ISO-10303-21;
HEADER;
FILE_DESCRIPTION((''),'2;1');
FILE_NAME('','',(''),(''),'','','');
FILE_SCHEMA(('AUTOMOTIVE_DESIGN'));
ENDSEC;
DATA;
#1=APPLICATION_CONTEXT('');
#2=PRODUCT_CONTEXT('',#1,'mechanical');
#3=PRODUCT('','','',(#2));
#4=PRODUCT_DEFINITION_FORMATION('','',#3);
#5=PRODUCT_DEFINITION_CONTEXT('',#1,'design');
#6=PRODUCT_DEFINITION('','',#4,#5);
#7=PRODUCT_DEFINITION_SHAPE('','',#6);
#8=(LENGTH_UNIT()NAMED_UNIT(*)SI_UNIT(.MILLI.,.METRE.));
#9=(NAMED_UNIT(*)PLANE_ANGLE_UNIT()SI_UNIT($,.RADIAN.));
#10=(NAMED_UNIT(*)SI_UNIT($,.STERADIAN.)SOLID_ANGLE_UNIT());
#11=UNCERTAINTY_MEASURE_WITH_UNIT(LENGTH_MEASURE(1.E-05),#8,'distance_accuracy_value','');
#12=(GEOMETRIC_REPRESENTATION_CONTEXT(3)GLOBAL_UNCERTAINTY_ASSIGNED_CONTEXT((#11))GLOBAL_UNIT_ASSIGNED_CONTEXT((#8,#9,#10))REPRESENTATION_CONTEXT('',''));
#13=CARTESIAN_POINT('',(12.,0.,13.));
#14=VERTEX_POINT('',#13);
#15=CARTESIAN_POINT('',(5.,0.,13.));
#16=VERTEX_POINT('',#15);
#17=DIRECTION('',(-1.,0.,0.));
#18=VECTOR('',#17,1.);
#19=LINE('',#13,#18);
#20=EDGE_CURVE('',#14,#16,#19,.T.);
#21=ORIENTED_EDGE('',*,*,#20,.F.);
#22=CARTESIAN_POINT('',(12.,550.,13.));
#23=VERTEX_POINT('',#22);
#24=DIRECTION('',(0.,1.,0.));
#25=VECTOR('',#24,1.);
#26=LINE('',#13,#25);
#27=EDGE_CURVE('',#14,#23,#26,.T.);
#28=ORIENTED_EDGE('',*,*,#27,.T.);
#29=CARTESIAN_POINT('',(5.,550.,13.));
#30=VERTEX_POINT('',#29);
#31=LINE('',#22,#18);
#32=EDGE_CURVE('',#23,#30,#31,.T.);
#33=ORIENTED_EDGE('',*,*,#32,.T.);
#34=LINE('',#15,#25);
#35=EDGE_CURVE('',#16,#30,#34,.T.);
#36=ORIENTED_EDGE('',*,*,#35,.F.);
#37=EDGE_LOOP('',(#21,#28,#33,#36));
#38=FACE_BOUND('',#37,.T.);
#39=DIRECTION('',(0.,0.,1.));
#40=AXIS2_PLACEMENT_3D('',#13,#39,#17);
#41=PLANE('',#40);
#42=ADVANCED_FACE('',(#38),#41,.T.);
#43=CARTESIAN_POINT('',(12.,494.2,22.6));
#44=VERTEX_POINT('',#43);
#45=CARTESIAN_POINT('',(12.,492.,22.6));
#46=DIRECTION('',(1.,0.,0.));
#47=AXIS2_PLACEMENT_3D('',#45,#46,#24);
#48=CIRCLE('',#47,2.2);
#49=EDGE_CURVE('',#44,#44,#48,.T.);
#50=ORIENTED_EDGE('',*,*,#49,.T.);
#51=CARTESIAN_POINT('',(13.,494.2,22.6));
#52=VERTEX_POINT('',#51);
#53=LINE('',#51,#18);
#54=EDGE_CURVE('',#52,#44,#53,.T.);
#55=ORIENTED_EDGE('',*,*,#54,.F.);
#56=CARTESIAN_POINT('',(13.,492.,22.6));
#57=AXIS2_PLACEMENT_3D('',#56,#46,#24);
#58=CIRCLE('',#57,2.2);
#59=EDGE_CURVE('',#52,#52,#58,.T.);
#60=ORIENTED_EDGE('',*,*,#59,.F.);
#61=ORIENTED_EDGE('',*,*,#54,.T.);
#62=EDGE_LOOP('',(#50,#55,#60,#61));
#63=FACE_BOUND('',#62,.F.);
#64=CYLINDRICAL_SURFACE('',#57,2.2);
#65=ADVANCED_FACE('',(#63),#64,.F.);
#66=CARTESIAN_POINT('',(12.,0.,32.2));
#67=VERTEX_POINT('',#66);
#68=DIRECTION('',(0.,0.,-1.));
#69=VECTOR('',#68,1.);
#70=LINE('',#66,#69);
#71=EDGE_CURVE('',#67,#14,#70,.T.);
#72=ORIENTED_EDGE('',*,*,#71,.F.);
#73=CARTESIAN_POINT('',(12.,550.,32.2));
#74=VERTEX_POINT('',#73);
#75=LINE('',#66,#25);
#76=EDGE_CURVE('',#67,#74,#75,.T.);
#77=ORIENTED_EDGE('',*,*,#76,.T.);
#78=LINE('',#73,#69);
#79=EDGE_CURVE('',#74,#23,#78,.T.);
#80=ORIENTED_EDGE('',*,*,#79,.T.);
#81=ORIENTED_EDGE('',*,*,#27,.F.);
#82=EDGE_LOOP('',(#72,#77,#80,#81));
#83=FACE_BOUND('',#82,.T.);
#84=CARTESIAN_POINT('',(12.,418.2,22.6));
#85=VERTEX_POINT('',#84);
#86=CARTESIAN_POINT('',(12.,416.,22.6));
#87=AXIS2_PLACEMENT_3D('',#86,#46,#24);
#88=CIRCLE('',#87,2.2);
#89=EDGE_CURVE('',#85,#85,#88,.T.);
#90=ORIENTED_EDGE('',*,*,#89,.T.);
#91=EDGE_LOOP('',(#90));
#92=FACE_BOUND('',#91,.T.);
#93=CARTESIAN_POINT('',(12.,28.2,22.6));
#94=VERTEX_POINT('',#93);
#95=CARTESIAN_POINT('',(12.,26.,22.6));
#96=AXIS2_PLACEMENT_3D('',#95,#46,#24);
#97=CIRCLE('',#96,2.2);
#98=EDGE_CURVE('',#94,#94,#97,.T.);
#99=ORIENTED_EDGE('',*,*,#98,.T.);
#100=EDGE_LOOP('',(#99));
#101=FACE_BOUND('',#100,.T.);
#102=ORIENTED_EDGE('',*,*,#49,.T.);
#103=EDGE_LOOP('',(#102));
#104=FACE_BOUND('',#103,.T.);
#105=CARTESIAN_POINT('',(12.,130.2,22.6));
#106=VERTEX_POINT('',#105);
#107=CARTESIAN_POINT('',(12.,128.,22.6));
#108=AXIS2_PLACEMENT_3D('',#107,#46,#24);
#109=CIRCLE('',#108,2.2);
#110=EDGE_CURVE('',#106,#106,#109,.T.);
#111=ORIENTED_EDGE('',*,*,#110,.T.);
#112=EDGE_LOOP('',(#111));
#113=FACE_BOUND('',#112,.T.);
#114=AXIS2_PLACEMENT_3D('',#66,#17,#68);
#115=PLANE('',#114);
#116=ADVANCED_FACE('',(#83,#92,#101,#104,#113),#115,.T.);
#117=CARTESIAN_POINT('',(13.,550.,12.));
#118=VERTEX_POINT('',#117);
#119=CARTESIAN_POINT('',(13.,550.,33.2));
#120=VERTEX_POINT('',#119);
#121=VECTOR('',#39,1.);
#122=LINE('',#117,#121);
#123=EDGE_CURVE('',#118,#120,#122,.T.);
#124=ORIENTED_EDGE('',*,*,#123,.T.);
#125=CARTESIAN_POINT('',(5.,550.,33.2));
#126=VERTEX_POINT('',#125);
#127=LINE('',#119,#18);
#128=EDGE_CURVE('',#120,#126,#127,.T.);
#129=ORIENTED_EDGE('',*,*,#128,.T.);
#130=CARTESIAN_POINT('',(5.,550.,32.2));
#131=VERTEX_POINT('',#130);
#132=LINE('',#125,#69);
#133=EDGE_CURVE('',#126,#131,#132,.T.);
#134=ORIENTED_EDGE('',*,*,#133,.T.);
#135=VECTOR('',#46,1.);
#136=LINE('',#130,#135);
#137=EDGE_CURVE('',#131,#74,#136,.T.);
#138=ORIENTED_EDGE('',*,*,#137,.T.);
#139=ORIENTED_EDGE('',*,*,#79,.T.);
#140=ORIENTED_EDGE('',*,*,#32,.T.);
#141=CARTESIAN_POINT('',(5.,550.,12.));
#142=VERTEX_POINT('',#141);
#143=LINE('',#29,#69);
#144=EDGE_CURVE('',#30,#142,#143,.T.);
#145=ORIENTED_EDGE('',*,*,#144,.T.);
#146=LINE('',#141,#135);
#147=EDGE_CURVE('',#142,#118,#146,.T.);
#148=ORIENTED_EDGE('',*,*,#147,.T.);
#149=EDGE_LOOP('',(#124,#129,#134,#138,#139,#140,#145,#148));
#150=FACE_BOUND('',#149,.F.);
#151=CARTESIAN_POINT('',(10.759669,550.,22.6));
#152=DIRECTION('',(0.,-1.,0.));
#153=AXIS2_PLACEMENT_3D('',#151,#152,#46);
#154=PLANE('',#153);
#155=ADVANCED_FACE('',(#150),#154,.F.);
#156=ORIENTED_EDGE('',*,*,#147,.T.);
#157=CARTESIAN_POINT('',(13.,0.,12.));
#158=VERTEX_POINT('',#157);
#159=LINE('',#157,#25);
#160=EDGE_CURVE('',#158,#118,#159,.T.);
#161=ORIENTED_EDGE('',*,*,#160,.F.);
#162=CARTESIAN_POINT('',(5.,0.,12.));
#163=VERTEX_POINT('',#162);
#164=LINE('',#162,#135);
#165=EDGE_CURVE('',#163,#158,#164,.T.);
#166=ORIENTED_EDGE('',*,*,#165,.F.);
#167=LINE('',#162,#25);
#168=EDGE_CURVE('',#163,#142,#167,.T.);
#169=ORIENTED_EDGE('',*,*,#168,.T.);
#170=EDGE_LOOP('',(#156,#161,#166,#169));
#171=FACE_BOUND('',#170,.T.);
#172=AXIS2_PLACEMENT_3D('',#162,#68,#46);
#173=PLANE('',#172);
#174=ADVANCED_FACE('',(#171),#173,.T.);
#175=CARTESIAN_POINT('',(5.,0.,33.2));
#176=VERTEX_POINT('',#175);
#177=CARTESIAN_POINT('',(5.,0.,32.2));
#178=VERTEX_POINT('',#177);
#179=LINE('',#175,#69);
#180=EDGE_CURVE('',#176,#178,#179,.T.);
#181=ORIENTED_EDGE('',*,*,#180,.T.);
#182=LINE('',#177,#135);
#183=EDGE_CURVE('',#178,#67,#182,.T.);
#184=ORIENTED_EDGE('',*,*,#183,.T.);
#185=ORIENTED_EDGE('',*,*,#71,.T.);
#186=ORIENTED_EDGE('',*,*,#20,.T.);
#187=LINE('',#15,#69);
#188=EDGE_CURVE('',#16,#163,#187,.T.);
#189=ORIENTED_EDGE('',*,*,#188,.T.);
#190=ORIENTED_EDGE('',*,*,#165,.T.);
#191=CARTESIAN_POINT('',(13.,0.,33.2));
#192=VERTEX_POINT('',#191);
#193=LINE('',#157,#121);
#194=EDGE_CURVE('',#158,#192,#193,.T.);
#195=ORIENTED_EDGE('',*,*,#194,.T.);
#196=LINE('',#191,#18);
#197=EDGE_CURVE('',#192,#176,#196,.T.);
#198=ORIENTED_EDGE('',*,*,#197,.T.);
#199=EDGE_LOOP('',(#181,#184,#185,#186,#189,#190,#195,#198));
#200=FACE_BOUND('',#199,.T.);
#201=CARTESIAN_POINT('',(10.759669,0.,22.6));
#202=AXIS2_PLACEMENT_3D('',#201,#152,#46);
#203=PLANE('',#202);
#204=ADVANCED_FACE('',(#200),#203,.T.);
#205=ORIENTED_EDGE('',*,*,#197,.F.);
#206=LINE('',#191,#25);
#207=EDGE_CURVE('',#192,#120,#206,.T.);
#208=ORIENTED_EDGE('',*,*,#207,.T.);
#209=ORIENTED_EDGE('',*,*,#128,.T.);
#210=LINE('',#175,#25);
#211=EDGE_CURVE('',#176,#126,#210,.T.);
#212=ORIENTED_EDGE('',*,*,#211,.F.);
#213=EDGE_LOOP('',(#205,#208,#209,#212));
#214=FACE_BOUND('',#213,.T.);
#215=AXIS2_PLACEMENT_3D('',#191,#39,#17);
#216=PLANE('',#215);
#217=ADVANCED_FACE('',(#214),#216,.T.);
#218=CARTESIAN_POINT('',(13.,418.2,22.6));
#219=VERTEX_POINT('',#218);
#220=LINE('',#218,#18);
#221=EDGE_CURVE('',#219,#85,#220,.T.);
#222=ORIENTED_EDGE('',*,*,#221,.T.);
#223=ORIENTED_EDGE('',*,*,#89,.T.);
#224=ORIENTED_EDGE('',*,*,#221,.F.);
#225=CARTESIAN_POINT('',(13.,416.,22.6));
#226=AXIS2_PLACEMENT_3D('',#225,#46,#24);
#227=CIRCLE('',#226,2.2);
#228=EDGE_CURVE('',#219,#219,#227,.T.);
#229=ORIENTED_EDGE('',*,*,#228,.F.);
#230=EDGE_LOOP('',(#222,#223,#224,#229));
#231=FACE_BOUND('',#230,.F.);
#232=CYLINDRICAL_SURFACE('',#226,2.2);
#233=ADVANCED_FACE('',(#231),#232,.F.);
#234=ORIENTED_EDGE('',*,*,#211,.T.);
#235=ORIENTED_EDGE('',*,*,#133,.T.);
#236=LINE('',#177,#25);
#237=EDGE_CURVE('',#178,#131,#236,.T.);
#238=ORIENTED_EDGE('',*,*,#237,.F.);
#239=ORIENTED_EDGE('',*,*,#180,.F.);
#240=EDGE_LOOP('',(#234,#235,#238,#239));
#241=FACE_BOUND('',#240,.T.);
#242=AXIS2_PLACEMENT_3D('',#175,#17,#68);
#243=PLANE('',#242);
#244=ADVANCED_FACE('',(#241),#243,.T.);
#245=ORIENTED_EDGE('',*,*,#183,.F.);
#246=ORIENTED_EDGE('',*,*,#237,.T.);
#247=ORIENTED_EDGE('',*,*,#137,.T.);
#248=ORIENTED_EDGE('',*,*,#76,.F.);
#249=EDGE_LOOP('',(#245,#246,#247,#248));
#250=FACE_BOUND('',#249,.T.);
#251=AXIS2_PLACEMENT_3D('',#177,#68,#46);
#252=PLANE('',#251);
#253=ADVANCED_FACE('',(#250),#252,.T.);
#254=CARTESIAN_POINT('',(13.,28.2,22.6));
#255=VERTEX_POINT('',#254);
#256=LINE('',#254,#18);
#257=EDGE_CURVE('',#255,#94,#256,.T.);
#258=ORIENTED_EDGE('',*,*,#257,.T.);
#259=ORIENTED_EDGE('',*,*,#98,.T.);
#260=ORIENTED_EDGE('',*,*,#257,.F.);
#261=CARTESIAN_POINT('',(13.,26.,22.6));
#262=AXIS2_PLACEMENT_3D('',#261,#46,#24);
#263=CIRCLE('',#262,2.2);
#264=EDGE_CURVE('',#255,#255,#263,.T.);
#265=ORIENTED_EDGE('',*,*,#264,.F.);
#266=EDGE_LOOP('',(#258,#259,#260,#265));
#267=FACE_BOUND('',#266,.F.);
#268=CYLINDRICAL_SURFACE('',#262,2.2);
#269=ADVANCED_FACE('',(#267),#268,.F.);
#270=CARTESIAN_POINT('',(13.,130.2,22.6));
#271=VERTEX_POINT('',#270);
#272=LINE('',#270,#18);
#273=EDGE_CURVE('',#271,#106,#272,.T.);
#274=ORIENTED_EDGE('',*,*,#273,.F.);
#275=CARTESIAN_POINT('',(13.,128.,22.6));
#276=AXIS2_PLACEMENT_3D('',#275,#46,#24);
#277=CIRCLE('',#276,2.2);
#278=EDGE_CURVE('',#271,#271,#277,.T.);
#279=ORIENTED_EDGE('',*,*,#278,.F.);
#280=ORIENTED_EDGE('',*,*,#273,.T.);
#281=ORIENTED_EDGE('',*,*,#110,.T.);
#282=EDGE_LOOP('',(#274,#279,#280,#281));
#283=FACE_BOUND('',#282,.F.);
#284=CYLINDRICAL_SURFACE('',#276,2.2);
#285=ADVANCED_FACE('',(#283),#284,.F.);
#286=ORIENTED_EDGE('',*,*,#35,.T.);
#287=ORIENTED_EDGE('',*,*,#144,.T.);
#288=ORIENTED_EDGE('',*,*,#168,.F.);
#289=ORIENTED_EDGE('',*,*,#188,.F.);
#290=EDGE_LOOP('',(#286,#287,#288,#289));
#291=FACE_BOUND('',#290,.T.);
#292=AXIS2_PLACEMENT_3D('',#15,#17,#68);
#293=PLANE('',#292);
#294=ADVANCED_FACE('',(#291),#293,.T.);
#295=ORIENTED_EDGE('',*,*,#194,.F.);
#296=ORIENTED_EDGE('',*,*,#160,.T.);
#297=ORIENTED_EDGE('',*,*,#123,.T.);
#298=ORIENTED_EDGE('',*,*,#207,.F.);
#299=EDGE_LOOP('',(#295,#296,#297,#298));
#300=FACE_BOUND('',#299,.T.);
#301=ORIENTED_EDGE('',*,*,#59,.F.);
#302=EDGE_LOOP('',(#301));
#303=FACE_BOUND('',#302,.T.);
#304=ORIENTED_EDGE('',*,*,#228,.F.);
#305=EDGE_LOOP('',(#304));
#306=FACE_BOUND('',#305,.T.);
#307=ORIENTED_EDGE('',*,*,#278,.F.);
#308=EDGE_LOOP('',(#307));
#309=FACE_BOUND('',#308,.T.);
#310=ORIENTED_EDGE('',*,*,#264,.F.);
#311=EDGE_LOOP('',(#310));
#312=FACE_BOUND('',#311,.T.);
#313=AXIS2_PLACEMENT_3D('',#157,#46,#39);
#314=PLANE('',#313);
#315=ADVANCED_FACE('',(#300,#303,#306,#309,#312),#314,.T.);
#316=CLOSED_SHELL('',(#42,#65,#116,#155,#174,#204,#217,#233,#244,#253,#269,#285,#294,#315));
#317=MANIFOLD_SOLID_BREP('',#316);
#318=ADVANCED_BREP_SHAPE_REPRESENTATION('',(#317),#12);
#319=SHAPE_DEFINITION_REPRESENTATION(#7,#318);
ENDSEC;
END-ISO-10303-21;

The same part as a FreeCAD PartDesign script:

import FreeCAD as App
import Part
import Sketcher

V = App.Vector

doc = App.newDocument("Part")
params = doc.addObject("Spreadsheet::Sheet", "Params")
for row, (alias, value) in enumerate([
    ("sketch1_width", "8 mm"),
    ("sketch1_width2", "7 mm"),
    ("sketch1_height", "1 mm"),
    ("sketch1_height2", "21.2 mm"),
    ("pad1_length", "550 mm"),
    ("sketch2_diameter", "4.4 mm"),
    ("pocket1_length", "1 mm"),
], start=1):
    params.set(f"A{row}", alias)
    params.set(f"B{row}", "=" + value)
    params.setAlias(f"B{row}", alias)

body = doc.addObject("PartDesign::Body", "Body")

# Sketch on XZ plane
sketch1 = doc.addObject("Sketcher::SketchObject", "Sketch")
body.addObject(sketch1)
sketch1.AttachmentSupport = (doc.XZ_Plane, [""])
sketch1.MapMode = "FlatFace"
sketch1.addGeometry(Part.LineSegment(V(5, 13, 0), V(5, 12, 0)), False)
sketch1.addGeometry(Part.LineSegment(V(5, 12, 0), V(13, 12, 0)), False)
sketch1.addGeometry(Part.LineSegment(V(13, 12, 0), V(13, 33.2, 0)), False)
sketch1.addGeometry(Part.LineSegment(V(13, 33.2, 0), V(5, 33.2, 0)), False)
sketch1.addGeometry(Part.LineSegment(V(5, 33.2, 0), V(5, 32.2, 0)), False)
sketch1.addGeometry(Part.LineSegment(V(5, 32.2, 0), V(12, 32.2, 0)), False)
sketch1.addGeometry(Part.LineSegment(V(12, 32.2, 0), V(12, 13, 0)), False)
sketch1.addGeometry(Part.LineSegment(V(12, 13, 0), V(5, 13, 0)), False)
sketch1.addConstraint(Sketcher.Constraint("Coincident", 0, 2, 1, 1))
sketch1.addConstraint(Sketcher.Constraint("Coincident", 1, 2, 2, 1))
sketch1.addConstraint(Sketcher.Constraint("Coincident", 2, 2, 3, 1))
sketch1.addConstraint(Sketcher.Constraint("Coincident", 3, 2, 4, 1))
sketch1.addConstraint(Sketcher.Constraint("Coincident", 4, 2, 5, 1))
sketch1.addConstraint(Sketcher.Constraint("Coincident", 5, 2, 6, 1))
sketch1.addConstraint(Sketcher.Constraint("Coincident", 6, 2, 7, 1))
sketch1.addConstraint(Sketcher.Constraint("Coincident", 7, 2, 0, 1))
sketch1.addConstraint(Sketcher.Constraint("Vertical", 0))
sketch1.addConstraint(Sketcher.Constraint("Horizontal", 1))
sketch1.addConstraint(Sketcher.Constraint("Vertical", 2))
sketch1.addConstraint(Sketcher.Constraint("Horizontal", 3))
sketch1.addConstraint(Sketcher.Constraint("Vertical", 4))
sketch1.addConstraint(Sketcher.Constraint("Horizontal", 5))
sketch1.addConstraint(Sketcher.Constraint("Vertical", 6))
sketch1.addConstraint(Sketcher.Constraint("Horizontal", 7))
sketch1.addConstraint(Sketcher.Constraint("Vertical", 0, 2, 3, 2))
sketch1.addConstraint(Sketcher.Constraint("Equal", 0, 4))
sketch1.addConstraint(Sketcher.Constraint("DistanceX", 1, 1, 1, 2, 8.0))
sketch1.addConstraint(Sketcher.Constraint("DistanceX", 5, 1, 5, 2, 7.0))
sketch1.addConstraint(Sketcher.Constraint("DistanceY", 0, 2, 0, 1, 1.0))
sketch1.addConstraint(Sketcher.Constraint("DistanceY", 2, 1, 2, 2, 21.2))
sketch1.addConstraint(Sketcher.Constraint("DistanceX", -1, 1, 0, 2, 5.0))
sketch1.addConstraint(Sketcher.Constraint("DistanceY", -1, 1, 0, 2, 12.0))
sketch1.setExpression("Constraints[18]", "Params.sketch1_width")
sketch1.setExpression("Constraints[19]", "Params.sketch1_width2")
sketch1.setExpression("Constraints[20]", "Params.sketch1_height")
sketch1.setExpression("Constraints[21]", "Params.sketch1_height2")
pad1 = doc.addObject("PartDesign::Pad", "Pad")
body.addObject(pad1)
pad1.Profile = sketch1
pad1.setExpression("Length", "Params.pad1_length")
pad1.Reversed = True

# Sketch on YZ plane
sketch2 = doc.addObject("Sketcher::SketchObject", "Sketch001")
body.addObject(sketch2)
sketch2.AttachmentSupport = (doc.YZ_Plane, [""])
sketch2.MapMode = "FlatFace"
sketch2.AttachmentOffset = App.Placement(V(0, 0, 13), App.Rotation())
sketch2.addGeometry(Part.Circle(V(26, 22.6, 0), V(0, 0, 1), 2.2), False)
sketch2.addGeometry(Part.Circle(V(128, 22.6, 0), V(0, 0, 1), 2.2), False)
sketch2.addGeometry(Part.Circle(V(416, 22.6, 0), V(0, 0, 1), 2.2), False)
sketch2.addGeometry(Part.Circle(V(492, 22.6, 0), V(0, 0, 1), 2.2), False)
sketch2.addConstraint(Sketcher.Constraint("Equal", 0, 1))
sketch2.addConstraint(Sketcher.Constraint("Equal", 1, 2))
sketch2.addConstraint(Sketcher.Constraint("Equal", 2, 3))
sketch2.addConstraint(Sketcher.Constraint("Horizontal", 0, 3, 1, 3))
sketch2.addConstraint(Sketcher.Constraint("Horizontal", 1, 3, 2, 3))
sketch2.addConstraint(Sketcher.Constraint("Horizontal", 2, 3, 3, 3))
sketch2.addConstraint(Sketcher.Constraint("Diameter", 0, 4.4))
sketch2.addConstraint(Sketcher.Constraint("DistanceX", -1, 1, 0, 3, 26.0))
sketch2.addConstraint(Sketcher.Constraint("DistanceX", -1, 1, 1, 3, 128.0))
sketch2.addConstraint(Sketcher.Constraint("DistanceX", -1, 1, 2, 3, 416.0))
sketch2.addConstraint(Sketcher.Constraint("DistanceX", -1, 1, 3, 3, 492.0))
sketch2.addConstraint(Sketcher.Constraint("DistanceY", -1, 1, 0, 3, 22.6))
sketch2.setExpression("Constraints[6]", "Params.sketch2_diameter")
pocket1 = doc.addObject("PartDesign::Pocket", "Pocket")
body.addObject(pocket1)
pocket1.Profile = sketch2
pocket1.setExpression("Length", "Params.pocket1_length")

doc.recompute()
